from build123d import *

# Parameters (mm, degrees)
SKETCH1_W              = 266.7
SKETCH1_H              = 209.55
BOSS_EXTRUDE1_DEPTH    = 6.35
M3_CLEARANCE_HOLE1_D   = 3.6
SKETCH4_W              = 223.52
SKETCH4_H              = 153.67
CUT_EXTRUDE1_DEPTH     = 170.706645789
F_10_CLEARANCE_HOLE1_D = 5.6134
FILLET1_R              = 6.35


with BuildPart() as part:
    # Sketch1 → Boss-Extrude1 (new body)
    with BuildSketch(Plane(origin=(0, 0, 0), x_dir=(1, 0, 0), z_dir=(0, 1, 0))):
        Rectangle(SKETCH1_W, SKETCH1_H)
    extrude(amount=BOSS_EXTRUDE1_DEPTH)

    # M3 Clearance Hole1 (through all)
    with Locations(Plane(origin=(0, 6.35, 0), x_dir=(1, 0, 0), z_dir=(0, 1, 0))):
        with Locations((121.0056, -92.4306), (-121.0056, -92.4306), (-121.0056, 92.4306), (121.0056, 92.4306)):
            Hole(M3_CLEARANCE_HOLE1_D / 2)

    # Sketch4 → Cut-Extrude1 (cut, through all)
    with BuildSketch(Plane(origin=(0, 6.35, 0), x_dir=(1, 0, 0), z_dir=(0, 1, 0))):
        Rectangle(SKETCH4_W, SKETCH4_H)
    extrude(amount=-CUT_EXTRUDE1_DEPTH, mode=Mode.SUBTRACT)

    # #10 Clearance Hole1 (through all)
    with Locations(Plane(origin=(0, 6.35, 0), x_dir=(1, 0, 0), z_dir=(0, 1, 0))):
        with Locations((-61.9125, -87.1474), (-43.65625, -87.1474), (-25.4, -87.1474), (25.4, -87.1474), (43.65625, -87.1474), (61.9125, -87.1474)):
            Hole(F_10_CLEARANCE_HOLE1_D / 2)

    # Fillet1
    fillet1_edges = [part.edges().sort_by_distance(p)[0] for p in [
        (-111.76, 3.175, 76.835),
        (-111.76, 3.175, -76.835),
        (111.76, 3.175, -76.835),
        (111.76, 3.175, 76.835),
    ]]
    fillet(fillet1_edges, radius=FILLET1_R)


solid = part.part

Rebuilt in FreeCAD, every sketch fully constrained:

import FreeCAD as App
import Part
import Sketcher

V = App.Vector
Q = App.Units.Quantity


def edges_at(feature, points):
    """Names of the edges that pass closest to the given points."""
    edges = feature.Shape.Edges
    near = lambda p: min(range(len(edges)), key=lambda i: edges[i].distToShape(Part.Vertex(*p))[0])
    return sorted({f"Edge{near(p) + 1}" for p in points})


def add_polygon(sketch, points):
    """Adds a closed chain of lines whose ends are joined by coincident constraints."""
    first, n = sketch.GeometryCount, len(points)
    for a, b in zip(points, points[1:] + points[:1]):
        sketch.addGeometry(Part.LineSegment(App.Vector(*a, 0), App.Vector(*b, 0)), False)
    for i in range(n):
        sketch.addConstraint(Sketcher.Constraint("Coincident", first + i, 2, first + (i + 1) % n, 1))

doc = App.newDocument("Part")
body = doc.addObject("PartDesign::Body", "Body")

# Sketch on XZ plane
sketch1 = body.newObject("Sketcher::SketchObject", "Sketch")
sketch1.AttachmentSupport = (doc.getObject("XZ_Plane"), [""])
sketch1.MapMode = "FlatFace"
add_polygon(sketch1, [(-133, -105), (-133, 105), (133, 105), (133, -105)])  # lines 0-3
sketch1.addConstraint([
    Sketcher.Constraint("Vertical", 0),
    Sketcher.Constraint("Horizontal", 1),
    Sketcher.Constraint("Vertical", 2),
    Sketcher.Constraint("Horizontal", 3),
    Sketcher.Constraint("Symmetric", 0, 2, 2, 2, -1, 1),
    Sketcher.Constraint("DistanceX", 1, 1, 1, 2, Q("10.5 in")),
    Sketcher.Constraint("DistanceY", 0, 1, 0, 2, Q("8.25 in")),
])
pad1 = body.newObject("PartDesign::Pad", "Pad")
pad1.Profile = sketch1
pad1.Length = Q("0.25 in")
pad1.Reversed = True

# Sketch on XZ plane
sketch2 = body.newObject("Sketcher::SketchObject", "Sketch001")
sketch2.AttachmentSupport = (doc.getObject("XZ_Plane"), [""])
sketch2.MapMode = "FlatFace"
sketch2.AttachmentOffset = App.Placement(V(0, 0, -0.25 * 25.4), App.Rotation())
sketch2.addGeometry([
    Part.Circle(V(121, 92.4, 0), V(0, 0, 1), 1.8),
    Part.Circle(V(-121, 92.4, 0), V(0, 0, 1), 1.8),
    Part.Circle(V(-121, -92.4, 0), V(0, 0, 1), 1.8),
    Part.Circle(V(121, -92.4, 0), V(0, 0, 1), 1.8),
], False)
sketch2.addConstraint([
    Sketcher.Constraint("Equal", 0, 1),
    Sketcher.Constraint("Equal", 1, 2),
    Sketcher.Constraint("Equal", 2, 3),
    Sketcher.Constraint("Symmetric", 0, 3, 2, 3, -1, 1),
    Sketcher.Constraint("Symmetric", 1, 3, 3, 3, -1, 1),
    Sketcher.Constraint("Symmetric", 0, 3, 1, 3, -2),
    Sketcher.Constraint("Diameter", 0, Q("3.6 mm")),
    Sketcher.Constraint("DistanceX", -1, 1, 0, 3, Q("4.764 in")),
    Sketcher.Constraint("DistanceY", -1, 1, 0, 3, Q("3.639 in")),
])
doc.recompute()
hole = body.newObject("PartDesign::Hole", "Hole")
hole.Profile = sketch2
hole.ThreadType = "None"
hole.Diameter = 3.6
hole.DepthType = "ThroughAll"
hole.Reversed = True

# Sketch on XZ plane
sketch3 = body.newObject("Sketcher::SketchObject", "Sketch002")
sketch3.AttachmentSupport = (doc.getObject("XZ_Plane"), [""])
sketch3.MapMode = "FlatFace"
sketch3.AttachmentOffset = App.Placement(V(0, 0, -0.25 * 25.4), App.Rotation())
add_polygon(sketch3, [(-112, -77), (-112, 77), (112, 77), (112, -77)])  # lines 0-3
sketch3.addConstraint([
    Sketcher.Constraint("Vertical", 0),
    Sketcher.Constraint("Horizontal", 1),
    Sketcher.Constraint("Vertical", 2),
    Sketcher.Constraint("Horizontal", 3),
    Sketcher.Constraint("Symmetric", 0, 2, 2, 2, -1, 1),
    Sketcher.Constraint("DistanceX", 1, 1, 1, 2, Q("8.8 in")),
    Sketcher.Constraint("DistanceY", 0, 1, 0, 2, Q("6.05 in")),
])
pocket1 = body.newObject("PartDesign::Pocket", "Pocket")
pocket1.Profile = sketch3
pocket1.Type = "ThroughAll"
pocket1.Reversed = True

# Sketch on XZ plane
sketch4 = body.newObject("Sketcher::SketchObject", "Sketch003")
sketch4.AttachmentSupport = (doc.getObject("XZ_Plane"), [""])
sketch4.MapMode = "FlatFace"
sketch4.AttachmentOffset = App.Placement(V(0, 0, -0.25 * 25.4), App.Rotation())
sketch4.addGeometry([
    Part.Circle(V(-61.9, 87.1, 0), V(0, 0, 1), 2.8),  # 0
    Part.Circle(V(-43.7, 87.1, 0), V(0, 0, 1), 2.8),  # 1
    Part.Circle(V(-25.4, 87.1, 0), V(0, 0, 1), 2.8),  # 2
    Part.Circle(V(25.4, 87.1, 0), V(0, 0, 1), 2.8),  # 3
    Part.Circle(V(43.7, 87.1, 0), V(0, 0, 1), 2.8),  # 4
    Part.Circle(V(61.9, 87.1, 0), V(0, 0, 1), 2.8),  # 5
], False)
sketch4.addConstraint([
    Sketcher.Constraint("Equal", 0, 1),
    Sketcher.Constraint("Equal", 1, 2),
    Sketcher.Constraint("Equal", 2, 3),
    Sketcher.Constraint("Equal", 3, 4),
    Sketcher.Constraint("Equal", 4, 5),
    Sketcher.Constraint("Symmetric", 2, 3, 3, 3, -2),
    Sketcher.Constraint("Symmetric", 1, 3, 4, 3, -2),
    Sketcher.Constraint("Symmetric", 0, 3, 5, 3, -2),
    Sketcher.Constraint("Horizontal", 0, 3, 1, 3),
    Sketcher.Constraint("Horizontal", 1, 3, 2, 3),
    Sketcher.Constraint("Diameter", 0, Q("0.221 in")),
    Sketcher.Constraint("DistanceX", 2, 3, -1, 1, Q("1 in")),
    Sketcher.Constraint("DistanceX", 0, 3, -1, 1, Q("2.4375 in")),
    Sketcher.Constraint("DistanceY", -1, 1, 0, 3, Q("3.431 in")),
    Sketcher.Constraint("DistanceX", 1, 3, -1, 1, Q("1.71875 in")),
])
doc.recompute()
hole2 = body.newObject("PartDesign::Hole", "Hole001")
hole2.Profile = sketch4
hole2.ThreadType = "None"
hole2.Diameter = Q("0.221 in")
hole2.DepthType = "ThroughAll"
hole2.Reversed = True
doc.recompute()

fillet = body.newObject("PartDesign::Fillet", "Fillet")
fillet.Base = (hole2, edges_at(hole2, [
    (-111.76, 3.175, 76.835),
    (-111.76, 3.175, -76.835),
    (111.76, 3.175, -76.835),
    (111.76, 3.175, 76.835),
]))
fillet.Radius = Q("0.25 in")

doc.recompute()
